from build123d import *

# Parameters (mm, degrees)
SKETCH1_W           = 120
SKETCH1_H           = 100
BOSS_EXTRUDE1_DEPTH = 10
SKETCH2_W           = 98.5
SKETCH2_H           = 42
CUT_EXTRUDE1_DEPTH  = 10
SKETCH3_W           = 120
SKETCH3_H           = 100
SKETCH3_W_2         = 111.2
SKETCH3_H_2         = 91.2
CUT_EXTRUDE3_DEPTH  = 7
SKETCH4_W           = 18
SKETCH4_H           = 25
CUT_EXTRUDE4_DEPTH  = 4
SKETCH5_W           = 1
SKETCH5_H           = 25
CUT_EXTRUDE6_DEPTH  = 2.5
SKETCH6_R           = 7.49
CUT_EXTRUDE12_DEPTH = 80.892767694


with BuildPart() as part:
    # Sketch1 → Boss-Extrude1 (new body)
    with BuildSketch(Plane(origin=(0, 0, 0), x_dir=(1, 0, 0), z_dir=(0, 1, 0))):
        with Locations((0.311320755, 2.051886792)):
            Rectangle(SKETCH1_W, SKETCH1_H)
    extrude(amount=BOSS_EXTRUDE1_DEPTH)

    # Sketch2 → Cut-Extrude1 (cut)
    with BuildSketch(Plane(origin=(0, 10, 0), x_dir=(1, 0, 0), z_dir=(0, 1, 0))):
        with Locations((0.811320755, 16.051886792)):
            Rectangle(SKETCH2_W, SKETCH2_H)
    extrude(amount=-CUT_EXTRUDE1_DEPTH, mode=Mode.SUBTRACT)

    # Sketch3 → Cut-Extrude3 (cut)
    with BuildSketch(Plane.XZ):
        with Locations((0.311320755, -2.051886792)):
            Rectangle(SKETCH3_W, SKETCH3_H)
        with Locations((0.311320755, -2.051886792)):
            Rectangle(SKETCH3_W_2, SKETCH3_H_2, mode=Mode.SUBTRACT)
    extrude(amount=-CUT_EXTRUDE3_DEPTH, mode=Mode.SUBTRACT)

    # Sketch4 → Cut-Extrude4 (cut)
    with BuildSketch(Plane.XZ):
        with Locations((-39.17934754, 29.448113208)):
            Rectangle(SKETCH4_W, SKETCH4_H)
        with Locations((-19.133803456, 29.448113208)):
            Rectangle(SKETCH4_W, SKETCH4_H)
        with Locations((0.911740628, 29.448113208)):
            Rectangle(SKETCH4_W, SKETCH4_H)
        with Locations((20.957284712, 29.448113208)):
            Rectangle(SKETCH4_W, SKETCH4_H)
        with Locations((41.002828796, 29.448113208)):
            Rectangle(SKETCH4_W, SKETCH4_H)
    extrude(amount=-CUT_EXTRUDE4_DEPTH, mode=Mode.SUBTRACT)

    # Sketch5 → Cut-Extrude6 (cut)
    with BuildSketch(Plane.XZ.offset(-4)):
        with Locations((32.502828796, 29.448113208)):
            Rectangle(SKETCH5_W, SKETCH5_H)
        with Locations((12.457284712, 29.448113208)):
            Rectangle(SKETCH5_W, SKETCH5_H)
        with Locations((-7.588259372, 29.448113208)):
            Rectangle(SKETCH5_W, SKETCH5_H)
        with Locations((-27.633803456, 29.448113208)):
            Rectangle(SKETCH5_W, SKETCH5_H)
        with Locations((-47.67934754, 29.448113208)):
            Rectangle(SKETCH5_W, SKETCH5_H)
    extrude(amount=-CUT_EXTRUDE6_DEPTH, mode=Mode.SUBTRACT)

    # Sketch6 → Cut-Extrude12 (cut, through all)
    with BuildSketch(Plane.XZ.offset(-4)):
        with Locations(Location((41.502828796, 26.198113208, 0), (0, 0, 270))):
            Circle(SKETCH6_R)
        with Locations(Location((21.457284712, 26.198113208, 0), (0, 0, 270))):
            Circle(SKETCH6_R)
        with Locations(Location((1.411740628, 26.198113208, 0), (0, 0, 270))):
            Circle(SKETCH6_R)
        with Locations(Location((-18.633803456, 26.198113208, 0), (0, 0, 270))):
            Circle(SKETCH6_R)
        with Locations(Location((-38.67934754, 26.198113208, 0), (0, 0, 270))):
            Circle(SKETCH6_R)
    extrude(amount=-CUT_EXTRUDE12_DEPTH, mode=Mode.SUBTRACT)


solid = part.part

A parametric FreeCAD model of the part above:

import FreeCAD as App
import Part
import Sketcher

doc = App.newDocument("Part")
params = doc.addObject("Spreadsheet::Sheet", "Params")
for row, (alias, value) in enumerate([
    ("sketch1_width", "120 mm"),
    ("sketch1_height", "100 mm"),
    ("pad1_length", "10 mm"),
    ("sketch2_height", "42 mm"),
    ("sketch2_width", "98.5 mm"),
    ("pocket1_length", "10 mm"),
    ("sketch3_width", "120 mm"),
    ("sketch3_height", "100 mm"),
    ("sketch3_width2", "111.2 mm"),
    ("sketch3_height2", "91.2 mm"),
    ("pocket2_length", "7 mm"),
    ("sketch4_width", "18 mm"),
    ("sketch4_height", "25 mm"),
    ("pocket3_length", "4 mm"),
    ("sketch5_width", "1 mm"),
    ("sketch5_height", "25 mm"),
    ("pocket4_length", "2.5 mm"),
    ("sketch6_diameter", "14.98 mm"),
], start=1):
    params.set(f"A{row}", alias)
    params.set(f"B{row}", "=" + value)
    params.setAlias(f"B{row}", alias)

body = doc.addObject("PartDesign::Body", "Body")

sketch1 = body.newObject("Sketcher::SketchObject", "Sketch")
sketch1.AttachmentSupport = (doc.getObject("XZ_Plane"), [""])
sketch1.MapMode = "FlatFace"
sketch1.addGeometry([
    Part.LineSegment(App.Vector(-60, -52, 0), App.Vector(-60, 48, 0)),
    Part.LineSegment(App.Vector(-60, 48, 0), App.Vector(60, 48, 0)),
    Part.LineSegment(App.Vector(60, 48, 0), App.Vector(60, -52, 0)),
    Part.LineSegment(App.Vector(60, -52, 0), App.Vector(-60, -52, 0)),
], False)
sketch1.addConstraint([
    Sketcher.Constraint("Coincident", 0, 2, 1, 1),
    Sketcher.Constraint("Coincident", 1, 2, 2, 1),
    Sketcher.Constraint("Coincident", 2, 2, 3, 1),
    Sketcher.Constraint("Coincident", 3, 2, 0, 1),
    Sketcher.Constraint("Vertical", 0),
    Sketcher.Constraint("Horizontal", 1),
    Sketcher.Constraint("Vertical", 2),
    Sketcher.Constraint("Horizontal", 3),
    Sketcher.Constraint("DistanceX", 1, 1, 1, 2, 120.0),
    Sketcher.Constraint("DistanceY", 0, 1, 0, 2, 100.0),
    Sketcher.Constraint("DistanceX", 0, 2, -1, 1, 59.688679),
    Sketcher.Constraint("DistanceY", -1, 1, 0, 2, 47.948113),
])
sketch1.setExpression("Constraints[8]", "Params.sketch1_width")
sketch1.setExpression("Constraints[9]", "Params.sketch1_height")
pad1 = body.newObject("PartDesign::Pad", "Pad")
pad1.Profile = sketch1
pad1.setExpression("Length", "Params.pad1_length")
pad1.Reversed = True

sketch2 = body.newObject("Sketcher::SketchObject", "Sketch001")
sketch2.AttachmentSupport = (doc.getObject("XZ_Plane"), [""])
sketch2.MapMode = "FlatFace"
sketch2.AttachmentOffset = App.Placement(App.Vector(0, 0, -10), App.Rotation())
sketch2.addGeometry([
    Part.LineSegment(App.Vector(-48, -37, 0), App.Vector(-48, 5, 0)),
    Part.LineSegment(App.Vector(-48, 5, 0), App.Vector(50, 5, 0)),
    Part.LineSegment(App.Vector(50, 5, 0), App.Vector(50, -37, 0)),
    Part.LineSegment(App.Vector(50, -37, 0), App.Vector(-48, -37, 0)),
], False)
sketch2.addConstraint([
    Sketcher.Constraint("Coincident", 0, 2, 1, 1),
    Sketcher.Constraint("Coincident", 1, 2, 2, 1),
    Sketcher.Constraint("Coincident", 2, 2, 3, 1),
    Sketcher.Constraint("Coincident", 3, 2, 0, 1),
    Sketcher.Constraint("Vertical", 0),
    Sketcher.Constraint("Horizontal", 1),
    Sketcher.Constraint("Vertical", 2),
    Sketcher.Constraint("Horizontal", 3),
    Sketcher.Constraint("DistanceY", 0, 1, 0, 2, 42.0),
    Sketcher.Constraint("DistanceX", 1, 1, 1, 2, 98.5),
    Sketcher.Constraint("DistanceX", 0, 2, -1, 1, 48.438679),
    Sketcher.Constraint("DistanceY", -1, 1, 0, 2, 4.948113),
])
sketch2.setExpression("Constraints[8]", "Params.sketch2_height")
sketch2.setExpression("Constraints[9]", "Params.sketch2_width")
pocket1 = body.newObject("PartDesign::Pocket", "Pocket")
pocket1.Profile = sketch2
pocket1.setExpression("Length", "Params.pocket1_length")
pocket1.Reversed = True

sketch3 = body.newObject("Sketcher::SketchObject", "Sketch002")
sketch3.AttachmentSupport = (doc.getObject("XZ_Plane"), [""])
sketch3.MapMode = "FlatFace"
sketch3.addGeometry([
    Part.LineSegment(App.Vector(-60, 48, 0), App.Vector(-60, -52, 0)),
    Part.LineSegment(App.Vector(-60, -52, 0), App.Vector(60, -52, 0)),
    Part.LineSegment(App.Vector(60, -52, 0), App.Vector(60, 48, 0)),
    Part.LineSegment(App.Vector(60, 48, 0), App.Vector(-60, 48, 0)),
    Part.LineSegment(App.Vector(56, -48, 0), App.Vector(-55, -48, 0)),
    Part.LineSegment(App.Vector(-55, -48, 0), App.Vector(-55, 44, 0)),
    Part.LineSegment(App.Vector(-55, 44, 0), App.Vector(56, 44, 0)),
    Part.LineSegment(App.Vector(56, 44, 0), App.Vector(56, -48, 0)),
], False)
sketch3.addConstraint([
    Sketcher.Constraint("Coincident", 0, 2, 1, 1),
    Sketcher.Constraint("Coincident", 1, 2, 2, 1),
    Sketcher.Constraint("Coincident", 2, 2, 3, 1),
    Sketcher.Constraint("Coincident", 3, 2, 0, 1),
    Sketcher.Constraint("Coincident", 4, 2, 5, 1),
    Sketcher.Constraint("Coincident", 5, 2, 6, 1),
    Sketcher.Constraint("Coincident", 6, 2, 7, 1),
    Sketcher.Constraint("Coincident", 7, 2, 4, 1),
    Sketcher.Constraint("Vertical", 0),
    Sketcher.Constraint("Horizontal", 1),
    Sketcher.Constraint("Vertical", 2),
    Sketcher.Constraint("Horizontal", 3),
    Sketcher.Constraint("Horizontal", 4),
    Sketcher.Constraint("Vertical", 5),
    Sketcher.Constraint("Horizontal", 6),
    Sketcher.Constraint("Vertical", 7),
    Sketcher.Constraint("DistanceX", 1, 1, 1, 2, 120.0),
    Sketcher.Constraint("DistanceY", 0, 2, 0, 1, 100.0),
    Sketcher.Constraint("DistanceX", 4, 2, 4, 1, 111.2),
    Sketcher.Constraint("DistanceY", 5, 1, 5, 2, 91.2),
    Sketcher.Constraint("DistanceX", 0, 2, 4, 2, 4.4),
    Sketcher.Constraint("DistanceY", 0, 2, 4, 2, 4.4),
    Sketcher.Constraint("DistanceX", 0, 2, -1, 1, 59.688679),
    Sketcher.Constraint("DistanceY", 0, 2, -1, 1, 52.051887),
])
sketch3.setExpression("Constraints[16]", "Params.sketch3_width")
sketch3.setExpression("Constraints[17]", "Params.sketch3_height")
sketch3.setExpression("Constraints[18]", "Params.sketch3_width2")
sketch3.setExpression("Constraints[19]", "Params.sketch3_height2")
pocket2 = body.newObject("PartDesign::Pocket", "Pocket001")
pocket2.Profile = sketch3
pocket2.setExpression("Length", "Params.pocket2_length")

sketch4 = body.newObject("Sketcher::SketchObject", "Sketch003")
sketch4.AttachmentSupport = (doc.getObject("XZ_Plane"), [""])
sketch4.MapMode = "FlatFace"
sketch4.addGeometry([
    Part.LineSegment(App.Vector(-48, 42, 0), App.Vector(-48, 17, 0)),
    Part.LineSegment(App.Vector(-48, 17, 0), App.Vector(-30, 17, 0)),
    Part.LineSegment(App.Vector(-30, 17, 0), App.Vector(-30, 42, 0)),
    Part.LineSegment(App.Vector(-30, 42, 0), App.Vector(-48, 42, 0)),
    Part.LineSegment(App.Vector(-28, 42, 0), App.Vector(-28, 17, 0)),
    Part.LineSegment(App.Vector(-28, 17, 0), App.Vector(-10, 17, 0)),
    Part.LineSegment(App.Vector(-10, 17, 0), App.Vector(-10, 42, 0)),
    Part.LineSegment(App.Vector(-10, 42, 0), App.Vector(-28, 42, 0)),
    Part.LineSegment(App.Vector(-8, 42, 0), App.Vector(-8, 17, 0)),
    Part.LineSegment(App.Vector(-8, 17, 0), App.Vector(10, 17, 0)),
    Part.LineSegment(App.Vector(10, 17, 0), App.Vector(10, 42, 0)),
    Part.LineSegment(App.Vector(10, 42, 0), App.Vector(-8, 42, 0)),
    Part.LineSegment(App.Vector(12, 42, 0), App.Vector(12, 17, 0)),
    Part.LineSegment(App.Vector(12, 17, 0), App.Vector(30, 17, 0)),
    Part.LineSegment(App.Vector(30, 17, 0), App.Vector(30, 42, 0)),
    Part.LineSegment(App.Vector(30, 42, 0), App.Vector(12, 42, 0)),
    Part.LineSegment(App.Vector(32, 42, 0), App.Vector(32, 17, 0)),
    Part.LineSegment(App.Vector(32, 17, 0), App.Vector(50, 17, 0)),
    Part.LineSegment(App.Vector(50, 17, 0), App.Vector(50, 42, 0)),
    Part.LineSegment(App.Vector(50, 42, 0), App.Vector(32, 42, 0)),
], False)
sketch4.addConstraint([
    Sketcher.Constraint("Coincident", 0, 2, 1, 1),
    Sketcher.Constraint("Coincident", 1, 2, 2, 1),
    Sketcher.Constraint("Coincident", 2, 2, 3, 1),
    Sketcher.Constraint("Coincident", 3, 2, 0, 1),
    Sketcher.Constraint("Coincident", 4, 2, 5, 1),
    Sketcher.Constraint("Coincident", 5, 2, 6, 1),
    Sketcher.Constraint("Coincident", 6, 2, 7, 1),
    Sketcher.Constraint("Coincident", 7, 2, 4, 1),
    Sketcher.Constraint("Coincident", 8, 2, 9, 1),
    Sketcher.Constraint("Coincident", 9, 2, 10, 1),
    Sketcher.Constraint("Coincident", 10, 2, 11, 1),
    Sketcher.Constraint("Coincident", 11, 2, 8, 1),
    Sketcher.Constraint("Coincident", 12, 2, 13, 1),
    Sketcher.Constraint("Coincident", 13, 2, 14, 1),
    Sketcher.Constraint("Coincident", 14, 2, 15, 1),
    Sketcher.Constraint("Coincident", 15, 2, 12, 1),
    Sketcher.Constraint("Coincident", 16, 2, 17, 1),
    Sketcher.Constraint("Coincident", 17, 2, 18, 1),
    Sketcher.Constraint("Coincident", 18, 2, 19, 1),
    Sketcher.Constraint("Coincident", 19, 2, 16, 1),
    Sketcher.Constraint("Vertical", 0),
    Sketcher.Constraint("Horizontal", 1),
    Sketcher.Constraint("Vertical", 2),
    Sketcher.Constraint("Horizontal", 3),
    Sketcher.Constraint("Vertical", 4),
    Sketcher.Constraint("Horizontal", 5),
    Sketcher.Constraint("Vertical", 6),
    Sketcher.Constraint("Horizontal", 7),
    Sketcher.Constraint("Vertical", 8),
    Sketcher.Constraint("Horizontal", 9),
    Sketcher.Constraint("Vertical", 10),
    Sketcher.Constraint("Horizontal", 11),
    Sketcher.Constraint("Vertical", 12),
    Sketcher.Constraint("Horizontal", 13),
    Sketcher.Constraint("Vertical", 14),
    Sketcher.Constraint("Horizontal", 15),
    Sketcher.Constraint("Vertical", 16),
    Sketcher.Constraint("Horizontal", 17),
    Sketcher.Constraint("Vertical", 18),
    Sketcher.Constraint("Horizontal", 19),
    Sketcher.Constraint("Horizontal", 1, 2, 4, 2),
    Sketcher.Constraint("Horizontal", 3, 2, 6, 2),
    Sketcher.Constraint("Horizontal", 5, 2, 8, 2),
    Sketcher.Constraint("Horizontal", 7, 2, 10, 2),
    Sketcher.Constraint("Horizontal", 9, 2, 12, 2),
    Sketcher.Constraint("Horizontal", 11, 2, 14, 2),
    Sketcher.Constraint("Horizontal", 13, 2, 16, 2),
    Sketcher.Constraint("Horizontal", 15, 2, 18, 2),
    Sketcher.Constraint("Equal", 3, 5),
    Sketcher.Constraint("Equal", 7, 9),
    Sketcher.Constraint("Equal", 11, 13),
    Sketcher.Constraint("Equal", 15, 17),
    Sketcher.Constraint("DistanceX", 1, 1, 1, 2, 18.0),
    Sketcher.Constraint("DistanceY", 0, 2, 0, 1, 25.0),
    Sketcher.Constraint("DistanceX", 8, 2, -1, 1, 8.088259),
    Sketcher.Constraint("DistanceX", -1, 1, 16, 2, 32.002829),
    Sketcher.Constraint("DistanceX", 1, 2, 8, 2, 22.091088),
    Sketcher.Constraint("DistanceX", 5, 2, 12, 2, 22.091088),
    Sketcher.Constraint("DistanceY", -1, 1, 0, 2, 16.948113),
    Sketcher.Constraint("DistanceX", 4, 2, -1, 1, 28.133803),
])
sketch4.setExpression("Constraints[52]", "Params.sketch4_width")
sketch4.setExpression("Constraints[53]", "Params.sketch4_height")
pocket3 = body.newObject("PartDesign::Pocket", "Pocket002")
pocket3.Profile = sketch4
pocket3.setExpression("Length", "Params.pocket3_length")

sketch5 = body.newObject("Sketcher::SketchObject", "Sketch004")
sketch5.AttachmentSupport = (doc.getObject("XZ_Plane"), [""])
sketch5.MapMode = "FlatFace"
sketch5.AttachmentOffset = App.Placement(App.Vector(0, 0, -4), App.Rotation())
sketch5.addGeometry([
    Part.LineSegment(App.Vector(32, 41.9, 0), App.Vector(32, 16.9, 0)),
    Part.LineSegment(App.Vector(32, 16.9, 0), App.Vector(33, 16.9, 0)),
    Part.LineSegment(App.Vector(33, 16.9, 0), App.Vector(33, 41.9, 0)),
    Part.LineSegment(App.Vector(33, 41.9, 0), App.Vector(32, 41.9, 0)),
    Part.LineSegment(App.Vector(12, 41.9, 0), App.Vector(12, 16.9, 0)),
    Part.LineSegment(App.Vector(12, 16.9, 0), App.Vector(13, 16.9, 0)),
    Part.LineSegment(App.Vector(13, 16.9, 0), App.Vector(13, 41.9, 0)),
    Part.LineSegment(App.Vector(13, 41.9, 0), App.Vector(12, 41.9, 0)),
    Part.LineSegment(App.Vector(-8.1, 41.9, 0), App.Vector(-8.1, 16.9, 0)),
    Part.LineSegment(App.Vector(-8.1, 16.9, 0), App.Vector(-7.1, 16.9, 0)),
    Part.LineSegment(App.Vector(-7.1, 16.9, 0), App.Vector(-7.1, 41.9, 0)),
    Part.LineSegment(App.Vector(-7.1, 41.9, 0), App.Vector(-8.1, 41.9, 0)),
    Part.LineSegment(App.Vector(-28.1, 41.9, 0), App.Vector(-28.1, 16.9, 0)),
    Part.LineSegment(App.Vector(-28.1, 16.9, 0), App.Vector(-27.1, 16.9, 0)),
    Part.LineSegment(App.Vector(-27.1, 16.9, 0), App.Vector(-27.1, 41.9, 0)),
    Part.LineSegment(App.Vector(-27.1, 41.9, 0), App.Vector(-28.1, 41.9, 0)),
    Part.LineSegment(App.Vector(-48.2, 41.9, 0), App.Vector(-48.2, 16.9, 0)),
    Part.LineSegment(App.Vector(-48.2, 16.9, 0), App.Vector(-47.2, 16.9, 0)),
    Part.LineSegment(App.Vector(-47.2, 16.9, 0), App.Vector(-47.2, 41.9, 0)),
    Part.LineSegment(App.Vector(-47.2, 41.9, 0), App.Vector(-48.2, 41.9, 0)),
], False)
sketch5.addConstraint([
    Sketcher.Constraint("Coincident", 0, 2, 1, 1),
    Sketcher.Constraint("Coincident", 1, 2, 2, 1),
    Sketcher.Constraint("Coincident", 2, 2, 3, 1),
    Sketcher.Constraint("Coincident", 3, 2, 0, 1),
    Sketcher.Constraint("Coincident", 4, 2, 5, 1),
    Sketcher.Constraint("Coincident", 5, 2, 6, 1),
    Sketcher.Constraint("Coincident", 6, 2, 7, 1),
    Sketcher.Constraint("Coincident", 7, 2, 4, 1),
    Sketcher.Constraint("Coincident", 8, 2, 9, 1),
    Sketcher.Constraint("Coincident", 9, 2, 10, 1),
    Sketcher.Constraint("Coincident", 10, 2, 11, 1),
    Sketcher.Constraint("Coincident", 11, 2, 8, 1),
    Sketcher.Constraint("Coincident", 12, 2, 13, 1),
    Sketcher.Constraint("Coincident", 13, 2, 14, 1),
    Sketcher.Constraint("Coincident", 14, 2, 15, 1),
    Sketcher.Constraint("Coincident", 15, 2, 12, 1),
    Sketcher.Constraint("Coincident", 16, 2, 17, 1),
    Sketcher.Constraint("Coincident", 17, 2, 18, 1),
    Sketcher.Constraint("Coincident", 18, 2, 19, 1),
    Sketcher.Constraint("Coincident", 19, 2, 16, 1),
    Sketcher.Constraint("Vertical", 0),
    Sketcher.Constraint("Horizontal", 1),
    Sketcher.Constraint("Vertical", 2),
    Sketcher.Constraint("Horizontal", 3),
    Sketcher.Constraint("Vertical", 4),
    Sketcher.Constraint("Horizontal", 5),
    Sketcher.Constraint("Vertical", 6),
    Sketcher.Constraint("Horizontal", 7),
    Sketcher.Constraint("Vertical", 8),
    Sketcher.Constraint("Horizontal", 9),
    Sketcher.Constraint("Vertical", 10),
    Sketcher.Constraint("Horizontal", 11),
    Sketcher.Constraint("Vertical", 12),
    Sketcher.Constraint("Horizontal", 13),
    Sketcher.Constraint("Vertical", 14),
    Sketcher.Constraint("Horizontal", 15),
    Sketcher.Constraint("Vertical", 16),
    Sketcher.Constraint("Horizontal", 17),
    Sketcher.Constraint("Vertical", 18),
    Sketcher.Constraint("Horizontal", 19),
    Sketcher.Constraint("Horizontal", 1, 2, 4, 2),
    Sketcher.Constraint("Horizontal", 3, 2, 6, 2),
    Sketcher.Constraint("Horizontal", 5, 2, 8, 2),
    Sketcher.Constraint("Horizontal", 7, 2, 10, 2),
    Sketcher.Constraint("Horizontal", 9, 2, 12, 2),
    Sketcher.Constraint("Horizontal", 11, 2, 14, 2),
    Sketcher.Constraint("Horizontal", 13, 2, 16, 2),
    Sketcher.Constraint("Horizontal", 15, 2, 18, 2),
    Sketcher.Constraint("Equal", 3, 5),
    Sketcher.Constraint("Equal", 7, 9),
    Sketcher.Constraint("Equal", 11, 13),
    Sketcher.Constraint("Equal", 15, 17),
    Sketcher.Constraint("DistanceX", 1, 1, 1, 2, 1.0),
    Sketcher.Constraint("DistanceY", 0, 2, 0, 1, 25.0),
    Sketcher.Constraint("DistanceX", -1, 1, 0, 2, 32.002829),
    Sketcher.Constraint("DistanceX", 8, 2, -1, 1, 8.088259),
    Sketcher.Constraint("DistanceX", 12, 2, 4, 2, 40.091088),
    Sketcher.Constraint("DistanceX", 16, 2, 8, 2, 40.091088),
    Sketcher.Constraint("DistanceY", -1, 1, 0, 2, 16.948113),
    Sketcher.Constraint("DistanceX", -1, 1, 4, 2, 11.957285),
])
sketch5.setExpression("Constraints[52]", "Params.sketch5_width")
sketch5.setExpression("Constraints[53]", "Params.sketch5_height")
pocket4 = body.newObject("PartDesign::Pocket", "Pocket003")
pocket4.Profile = sketch5
pocket4.setExpression("Length", "Params.pocket4_length")

sketch6 = body.newObject("Sketcher::SketchObject", "Sketch005")
sketch6.AttachmentSupport = (doc.getObject("XZ_Plane"), [""])
sketch6.MapMode = "FlatFace"
sketch6.AttachmentOffset = App.Placement(App.Vector(0, 0, -4), App.Rotation())
sketch6.addGeometry([
    Part.Circle(App.Vector(42, 26, 0), App.Vector(0, 0, 1), 7),
    Part.Circle(App.Vector(21, 26, 0), App.Vector(0, 0, 1), 7),
    Part.Circle(App.Vector(1, 26, 0), App.Vector(0, 0, 1), 7),
    Part.Circle(App.Vector(-19, 26, 0), App.Vector(0, 0, 1), 7),
    Part.Circle(App.Vector(-39, 26, 0), App.Vector(0, 0, 1), 7),
], False)
sketch6.addConstraint([
    Sketcher.Constraint("Equal", 0, 1),
    Sketcher.Constraint("Equal", 1, 2),
    Sketcher.Constraint("Equal", 2, 3),
    Sketcher.Constraint("Equal", 3, 4),
    Sketcher.Constraint("Horizontal", 0, 3, 1, 3),
    Sketcher.Constraint("Horizontal", 1, 3, 2, 3),
    Sketcher.Constraint("Horizontal", 2, 3, 3, 3),
    Sketcher.Constraint("Horizontal", 3, 3, 4, 3),
    Sketcher.Constraint("Diameter", 0, 14.98),
    Sketcher.Constraint("DistanceX", -1, 1, 0, 3, 41.502829),
    Sketcher.Constraint("DistanceX", -1, 1, 2, 3, 1.411741),
    Sketcher.Constraint("DistanceX", 3, 3, 1, 3, 40.091088),
    Sketcher.Constraint("DistanceX", 4, 3, 2, 3, 40.091088),
    Sketcher.Constraint("DistanceY", -1, 1, 0, 3, 26.198113),
    Sketcher.Constraint("DistanceX", -1, 1, 1, 3, 21.457285),
])
sketch6.setExpression("Constraints[8]", "Params.sketch6_diameter")
pocket5 = body.newObject("PartDesign::Pocket", "Pocket004")
pocket5.Profile = sketch6
pocket5.Type = "ThroughAll"

doc.recompute()
